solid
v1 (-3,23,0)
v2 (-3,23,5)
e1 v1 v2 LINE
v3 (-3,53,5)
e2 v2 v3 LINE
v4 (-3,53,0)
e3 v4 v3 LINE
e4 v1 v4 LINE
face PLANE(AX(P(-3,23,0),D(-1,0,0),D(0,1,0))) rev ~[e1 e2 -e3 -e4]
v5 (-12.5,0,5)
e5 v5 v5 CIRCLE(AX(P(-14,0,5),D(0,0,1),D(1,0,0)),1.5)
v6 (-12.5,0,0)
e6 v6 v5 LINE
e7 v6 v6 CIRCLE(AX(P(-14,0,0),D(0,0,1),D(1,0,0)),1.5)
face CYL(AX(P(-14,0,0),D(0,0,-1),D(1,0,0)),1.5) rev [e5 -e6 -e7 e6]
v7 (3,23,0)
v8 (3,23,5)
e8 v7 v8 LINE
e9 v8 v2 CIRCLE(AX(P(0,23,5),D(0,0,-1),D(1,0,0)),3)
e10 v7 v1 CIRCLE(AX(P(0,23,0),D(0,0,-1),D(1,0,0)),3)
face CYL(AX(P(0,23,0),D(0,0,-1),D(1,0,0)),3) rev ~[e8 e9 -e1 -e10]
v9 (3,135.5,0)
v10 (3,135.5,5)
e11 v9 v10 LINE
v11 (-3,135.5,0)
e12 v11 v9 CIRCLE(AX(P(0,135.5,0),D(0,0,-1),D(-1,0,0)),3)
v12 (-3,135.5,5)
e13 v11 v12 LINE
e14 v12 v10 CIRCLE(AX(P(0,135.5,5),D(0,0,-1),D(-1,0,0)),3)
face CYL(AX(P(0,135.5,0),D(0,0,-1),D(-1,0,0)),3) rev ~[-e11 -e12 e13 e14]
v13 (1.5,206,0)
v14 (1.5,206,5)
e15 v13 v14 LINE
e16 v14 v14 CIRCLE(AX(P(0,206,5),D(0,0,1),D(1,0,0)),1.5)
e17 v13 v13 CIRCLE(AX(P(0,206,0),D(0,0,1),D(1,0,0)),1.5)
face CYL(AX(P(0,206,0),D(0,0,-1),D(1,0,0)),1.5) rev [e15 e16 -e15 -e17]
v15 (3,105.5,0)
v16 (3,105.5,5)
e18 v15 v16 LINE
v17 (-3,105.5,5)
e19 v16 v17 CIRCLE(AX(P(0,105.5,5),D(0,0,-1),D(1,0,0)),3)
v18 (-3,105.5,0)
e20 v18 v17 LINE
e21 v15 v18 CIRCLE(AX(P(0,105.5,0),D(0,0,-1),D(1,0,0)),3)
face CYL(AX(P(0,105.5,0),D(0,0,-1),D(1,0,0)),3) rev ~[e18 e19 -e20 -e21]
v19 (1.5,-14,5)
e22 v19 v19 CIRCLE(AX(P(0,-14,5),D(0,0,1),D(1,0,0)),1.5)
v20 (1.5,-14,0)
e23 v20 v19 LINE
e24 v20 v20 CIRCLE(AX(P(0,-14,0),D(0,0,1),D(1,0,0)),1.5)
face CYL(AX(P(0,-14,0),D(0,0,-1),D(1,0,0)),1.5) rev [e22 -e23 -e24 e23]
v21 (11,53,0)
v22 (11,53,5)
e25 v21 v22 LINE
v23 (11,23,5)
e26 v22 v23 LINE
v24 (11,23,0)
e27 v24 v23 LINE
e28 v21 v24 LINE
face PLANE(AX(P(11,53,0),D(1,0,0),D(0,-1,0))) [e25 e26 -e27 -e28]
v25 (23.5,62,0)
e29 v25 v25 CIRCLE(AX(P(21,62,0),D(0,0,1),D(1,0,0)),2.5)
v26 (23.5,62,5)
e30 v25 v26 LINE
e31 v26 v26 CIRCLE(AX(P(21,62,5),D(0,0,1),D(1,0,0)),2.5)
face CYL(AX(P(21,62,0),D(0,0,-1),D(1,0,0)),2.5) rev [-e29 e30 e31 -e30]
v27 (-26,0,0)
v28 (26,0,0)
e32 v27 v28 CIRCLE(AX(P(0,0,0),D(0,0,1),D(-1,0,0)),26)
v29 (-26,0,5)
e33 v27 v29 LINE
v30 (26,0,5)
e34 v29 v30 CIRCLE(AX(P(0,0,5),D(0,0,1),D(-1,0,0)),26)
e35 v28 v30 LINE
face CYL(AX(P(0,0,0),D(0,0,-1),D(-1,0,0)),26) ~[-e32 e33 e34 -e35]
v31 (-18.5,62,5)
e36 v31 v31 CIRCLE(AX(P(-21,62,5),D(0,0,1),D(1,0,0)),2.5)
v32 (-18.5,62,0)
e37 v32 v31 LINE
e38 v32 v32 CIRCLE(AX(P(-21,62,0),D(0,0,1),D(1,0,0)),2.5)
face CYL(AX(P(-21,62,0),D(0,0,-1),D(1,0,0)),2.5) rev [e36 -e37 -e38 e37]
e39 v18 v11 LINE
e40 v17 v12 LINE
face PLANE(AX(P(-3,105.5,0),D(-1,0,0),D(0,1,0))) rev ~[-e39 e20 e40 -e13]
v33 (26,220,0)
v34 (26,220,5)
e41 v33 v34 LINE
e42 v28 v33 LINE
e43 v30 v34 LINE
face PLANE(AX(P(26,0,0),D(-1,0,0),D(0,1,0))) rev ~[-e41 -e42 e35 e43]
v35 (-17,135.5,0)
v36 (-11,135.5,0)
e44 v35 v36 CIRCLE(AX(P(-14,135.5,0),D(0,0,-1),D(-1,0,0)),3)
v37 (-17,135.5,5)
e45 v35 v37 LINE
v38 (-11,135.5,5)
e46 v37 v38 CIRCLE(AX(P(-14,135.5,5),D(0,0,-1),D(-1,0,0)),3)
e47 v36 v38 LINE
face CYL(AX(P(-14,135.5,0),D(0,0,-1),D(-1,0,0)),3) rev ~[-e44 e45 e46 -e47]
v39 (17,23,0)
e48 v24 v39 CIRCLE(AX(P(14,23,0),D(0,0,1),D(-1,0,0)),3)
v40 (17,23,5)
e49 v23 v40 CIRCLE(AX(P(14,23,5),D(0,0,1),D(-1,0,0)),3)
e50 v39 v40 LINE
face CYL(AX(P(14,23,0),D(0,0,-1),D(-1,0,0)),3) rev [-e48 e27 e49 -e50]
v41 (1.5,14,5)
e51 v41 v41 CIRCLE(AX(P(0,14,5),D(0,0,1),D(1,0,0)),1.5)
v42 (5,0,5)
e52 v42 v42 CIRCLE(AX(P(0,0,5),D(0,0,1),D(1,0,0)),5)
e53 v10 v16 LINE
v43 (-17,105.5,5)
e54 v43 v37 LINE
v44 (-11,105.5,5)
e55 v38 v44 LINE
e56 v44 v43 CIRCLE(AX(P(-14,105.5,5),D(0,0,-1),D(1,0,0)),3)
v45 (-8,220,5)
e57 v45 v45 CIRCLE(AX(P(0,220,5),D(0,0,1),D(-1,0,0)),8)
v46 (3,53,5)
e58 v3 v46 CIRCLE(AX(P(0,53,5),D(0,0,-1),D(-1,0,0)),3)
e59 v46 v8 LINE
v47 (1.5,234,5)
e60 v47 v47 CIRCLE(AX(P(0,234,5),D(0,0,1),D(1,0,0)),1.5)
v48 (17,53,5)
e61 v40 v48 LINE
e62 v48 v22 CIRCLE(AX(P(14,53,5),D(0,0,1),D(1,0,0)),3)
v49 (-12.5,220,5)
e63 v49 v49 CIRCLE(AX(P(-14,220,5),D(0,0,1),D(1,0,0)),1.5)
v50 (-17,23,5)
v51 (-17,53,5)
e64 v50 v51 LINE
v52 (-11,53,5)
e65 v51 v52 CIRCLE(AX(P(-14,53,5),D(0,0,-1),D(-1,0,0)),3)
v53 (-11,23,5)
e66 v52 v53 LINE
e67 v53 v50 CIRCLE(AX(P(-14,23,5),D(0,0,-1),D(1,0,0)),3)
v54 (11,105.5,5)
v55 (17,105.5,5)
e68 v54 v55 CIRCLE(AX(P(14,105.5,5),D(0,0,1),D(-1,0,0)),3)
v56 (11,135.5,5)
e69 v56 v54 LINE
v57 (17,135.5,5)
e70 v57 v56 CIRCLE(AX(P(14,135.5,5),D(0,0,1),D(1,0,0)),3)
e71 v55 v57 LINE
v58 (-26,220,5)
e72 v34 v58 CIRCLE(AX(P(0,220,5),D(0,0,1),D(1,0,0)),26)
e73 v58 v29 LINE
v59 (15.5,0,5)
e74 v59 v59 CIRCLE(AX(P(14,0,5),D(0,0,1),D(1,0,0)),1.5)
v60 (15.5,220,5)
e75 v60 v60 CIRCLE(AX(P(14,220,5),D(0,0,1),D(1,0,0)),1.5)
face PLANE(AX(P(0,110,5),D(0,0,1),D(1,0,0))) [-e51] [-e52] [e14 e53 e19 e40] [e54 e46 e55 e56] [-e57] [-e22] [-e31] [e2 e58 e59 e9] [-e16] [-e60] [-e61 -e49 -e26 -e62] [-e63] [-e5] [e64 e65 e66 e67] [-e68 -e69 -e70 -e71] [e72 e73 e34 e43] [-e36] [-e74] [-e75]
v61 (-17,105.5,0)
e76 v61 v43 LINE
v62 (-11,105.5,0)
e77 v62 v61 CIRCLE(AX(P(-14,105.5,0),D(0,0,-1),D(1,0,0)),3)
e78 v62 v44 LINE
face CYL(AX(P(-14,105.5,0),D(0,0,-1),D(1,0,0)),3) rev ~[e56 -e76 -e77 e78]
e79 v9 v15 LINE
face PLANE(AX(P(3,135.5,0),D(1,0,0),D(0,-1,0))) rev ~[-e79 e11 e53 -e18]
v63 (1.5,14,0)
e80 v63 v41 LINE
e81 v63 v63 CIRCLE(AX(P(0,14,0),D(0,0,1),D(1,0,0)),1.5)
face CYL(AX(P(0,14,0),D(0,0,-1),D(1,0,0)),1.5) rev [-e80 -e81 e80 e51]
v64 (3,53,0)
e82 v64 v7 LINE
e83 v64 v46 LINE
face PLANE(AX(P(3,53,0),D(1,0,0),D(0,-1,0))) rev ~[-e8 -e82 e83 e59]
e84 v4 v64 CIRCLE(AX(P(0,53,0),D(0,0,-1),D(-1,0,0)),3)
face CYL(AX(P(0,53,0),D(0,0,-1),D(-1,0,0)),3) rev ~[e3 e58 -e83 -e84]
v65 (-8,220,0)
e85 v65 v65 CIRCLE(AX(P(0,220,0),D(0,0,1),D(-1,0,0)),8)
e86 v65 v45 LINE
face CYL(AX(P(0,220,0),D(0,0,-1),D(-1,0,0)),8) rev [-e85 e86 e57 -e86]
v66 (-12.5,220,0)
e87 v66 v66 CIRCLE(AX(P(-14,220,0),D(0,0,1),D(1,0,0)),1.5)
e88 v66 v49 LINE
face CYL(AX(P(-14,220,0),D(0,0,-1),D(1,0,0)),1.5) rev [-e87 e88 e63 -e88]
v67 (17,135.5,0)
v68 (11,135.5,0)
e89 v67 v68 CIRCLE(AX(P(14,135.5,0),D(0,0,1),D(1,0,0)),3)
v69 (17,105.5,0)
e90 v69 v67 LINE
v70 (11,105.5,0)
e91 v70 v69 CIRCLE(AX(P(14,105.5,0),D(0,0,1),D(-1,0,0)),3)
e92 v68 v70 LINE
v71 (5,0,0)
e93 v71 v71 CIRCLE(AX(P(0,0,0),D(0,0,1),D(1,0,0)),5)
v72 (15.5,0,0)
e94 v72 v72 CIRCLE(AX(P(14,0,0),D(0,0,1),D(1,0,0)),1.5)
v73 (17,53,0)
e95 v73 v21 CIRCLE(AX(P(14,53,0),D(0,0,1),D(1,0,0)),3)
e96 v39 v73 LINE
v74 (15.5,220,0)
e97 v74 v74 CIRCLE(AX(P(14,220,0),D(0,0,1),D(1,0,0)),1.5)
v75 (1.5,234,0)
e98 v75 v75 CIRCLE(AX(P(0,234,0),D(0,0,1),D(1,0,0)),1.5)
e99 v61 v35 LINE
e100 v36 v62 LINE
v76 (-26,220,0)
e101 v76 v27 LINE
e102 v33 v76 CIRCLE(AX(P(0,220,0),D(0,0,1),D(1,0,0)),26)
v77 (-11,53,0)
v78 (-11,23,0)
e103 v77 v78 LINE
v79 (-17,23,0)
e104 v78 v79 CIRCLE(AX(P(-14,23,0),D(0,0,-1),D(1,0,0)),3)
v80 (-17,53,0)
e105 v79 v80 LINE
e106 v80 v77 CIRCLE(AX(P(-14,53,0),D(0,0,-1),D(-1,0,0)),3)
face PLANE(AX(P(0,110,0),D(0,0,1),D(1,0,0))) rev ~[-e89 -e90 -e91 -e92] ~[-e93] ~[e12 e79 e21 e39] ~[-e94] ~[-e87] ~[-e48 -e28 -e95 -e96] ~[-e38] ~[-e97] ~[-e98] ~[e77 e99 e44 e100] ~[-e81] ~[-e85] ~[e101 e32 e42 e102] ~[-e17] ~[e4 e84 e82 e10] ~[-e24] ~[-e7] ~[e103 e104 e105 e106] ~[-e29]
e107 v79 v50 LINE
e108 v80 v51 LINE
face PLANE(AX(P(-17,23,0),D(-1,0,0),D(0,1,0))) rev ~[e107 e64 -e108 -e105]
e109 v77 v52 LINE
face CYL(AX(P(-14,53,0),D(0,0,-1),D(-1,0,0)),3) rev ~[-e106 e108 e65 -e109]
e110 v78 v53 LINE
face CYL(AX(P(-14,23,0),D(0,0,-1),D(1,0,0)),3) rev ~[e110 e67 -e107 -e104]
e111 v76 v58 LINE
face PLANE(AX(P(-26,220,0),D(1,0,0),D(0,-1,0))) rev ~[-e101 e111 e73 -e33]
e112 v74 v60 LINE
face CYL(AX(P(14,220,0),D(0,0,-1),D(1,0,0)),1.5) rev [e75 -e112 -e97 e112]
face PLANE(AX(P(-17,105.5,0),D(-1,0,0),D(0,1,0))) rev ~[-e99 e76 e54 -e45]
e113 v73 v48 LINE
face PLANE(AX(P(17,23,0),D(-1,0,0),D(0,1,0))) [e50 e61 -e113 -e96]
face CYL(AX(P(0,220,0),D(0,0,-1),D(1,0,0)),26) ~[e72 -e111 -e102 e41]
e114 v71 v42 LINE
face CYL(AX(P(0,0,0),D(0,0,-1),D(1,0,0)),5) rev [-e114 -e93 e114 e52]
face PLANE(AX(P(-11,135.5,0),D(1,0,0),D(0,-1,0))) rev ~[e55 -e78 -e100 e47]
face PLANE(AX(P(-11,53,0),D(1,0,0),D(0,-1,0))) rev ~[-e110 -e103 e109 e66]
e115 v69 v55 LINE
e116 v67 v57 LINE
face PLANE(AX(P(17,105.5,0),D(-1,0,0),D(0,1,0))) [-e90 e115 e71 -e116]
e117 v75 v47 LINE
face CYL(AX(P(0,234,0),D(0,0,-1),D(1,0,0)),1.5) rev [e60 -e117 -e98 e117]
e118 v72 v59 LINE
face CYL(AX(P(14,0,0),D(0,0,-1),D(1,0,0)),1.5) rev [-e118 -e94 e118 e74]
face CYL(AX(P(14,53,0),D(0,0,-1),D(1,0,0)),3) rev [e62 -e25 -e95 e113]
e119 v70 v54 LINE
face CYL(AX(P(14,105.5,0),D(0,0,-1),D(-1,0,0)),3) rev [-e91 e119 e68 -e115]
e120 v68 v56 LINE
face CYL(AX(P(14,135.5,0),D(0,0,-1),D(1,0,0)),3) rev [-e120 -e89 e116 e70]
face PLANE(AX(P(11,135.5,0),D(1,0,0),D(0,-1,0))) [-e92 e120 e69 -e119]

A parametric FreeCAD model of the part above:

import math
import FreeCAD as App
import Part
import Sketcher

V = App.Vector
Q = App.Units.Quantity

doc = App.newDocument("Part")
body = doc.addObject("PartDesign::Body", "Body")

# Sketch on XY plane
sketch1 = body.newObject("Sketcher::SketchObject", "Sketch")
sketch1.AttachmentSupport = (doc.getObject("XY_Plane"), [""])
sketch1.MapMode = "FlatFace"
sketch1.addGeometry([
    Part.LineSegment(V(-26, 220, 0), V(-26, 0, 0)),  # 0
    Part.ArcOfCircle(Part.Circle(V(0, 0, 0), V(0, 0, 1), 26), math.radians(180), math.radians(360)),  # 1
    Part.LineSegment(V(26, 0, 0), V(26, 220, 0)),  # 2
    Part.ArcOfCircle(Part.Circle(V(0, 220, 0), V(0, 0, 1), 26), math.radians(0), math.radians(180)),  # 3
    Part.Circle(V(-14, 0, 0), V(0, 0, 1), 1.5),  # 4
    Part.ArcOfCircle(Part.Circle(V(-14, 23, 0), V(0, 0, 1), 3), math.radians(180), math.radians(360)),  # 5
    Part.LineSegment(V(-17, 23, 0), V(-17, 53, 0)),  # 6
    Part.ArcOfCircle(Part.Circle(V(-14, 53, 0), V(0, 0, 1), 3), math.radians(0), math.radians(180)),  # 7
    Part.LineSegment(V(-11, 53, 0), V(-11, 23, 0)),  # 8
    Part.Circle(V(-21, 62, 0), V(0, 0, 1), 2.5),  # 9
    Part.Circle(V(0, -14, 0), V(0, 0, 1), 1.5),  # 10
    Part.Circle(V(0, 0, 0), V(0, 0, 1), 5),  # 11
    Part.Circle(V(0, 14, 0), V(0, 0, 1), 1.5),  # 12
    Part.ArcOfCircle(Part.Circle(V(0, 23, 0), V(0, 0, 1), 3), math.radians(180), math.radians(360)),  # 13
    Part.LineSegment(V(-3, 23, 0), V(-3, 53, 0)),  # 14
    Part.ArcOfCircle(Part.Circle(V(0, 53, 0), V(0, 0, 1), 3), math.radians(0), math.radians(180)),  # 15
    Part.LineSegment(V(3, 53, 0), V(3, 23, 0)),  # 16
    Part.Circle(V(14, 0, 0), V(0, 0, 1), 1.5),  # 17
    Part.LineSegment(V(17, 53, 0), V(17, 23, 0)),  # 18
    Part.ArcOfCircle(Part.Circle(V(14, 23, 0), V(0, 0, 1), 3), math.radians(180), math.radians(360)),  # 19
    Part.LineSegment(V(11, 23, 0), V(11, 53, 0)),  # 20
    Part.ArcOfCircle(Part.Circle(V(14, 53, 0), V(0, 0, 1), 3), math.radians(0), math.radians(180)),  # 21
    Part.Circle(V(21, 62, 0), V(0, 0, 1), 2.5),  # 22
    Part.ArcOfCircle(Part.Circle(V(-14, 105.5, 0), V(0, 0, 1), 3), math.radians(180), math.radians(360)),  # 23
    Part.LineSegment(V(-17, 105.5, 0), V(-17, 135.5, 0)),  # 24
    Part.ArcOfCircle(Part.Circle(V(-14, 135.5, 0), V(0, 0, 1), 3), math.radians(0), math.radians(180)),  # 25
    Part.LineSegment(V(-11, 135.5, 0), V(-11, 105.5, 0)),  # 26
    Part.Circle(V(-14, 220, 0), V(0, 0, 1), 1.5),  # 27
    Part.ArcOfCircle(Part.Circle(V(0, 105.5, 0), V(0, 0, 1), 3), math.radians(180), math.radians(360)),  # 28
    Part.LineSegment(V(-3, 105.5, 0), V(-3, 135.5, 0)),  # 29
    Part.ArcOfCircle(Part.Circle(V(0, 135.5, 0), V(0, 0, 1), 3), math.radians(0), math.radians(180)),  # 30
    Part.LineSegment(V(3, 135.5, 0), V(3, 105.5, 0)),  # 31
    Part.LineSegment(V(17, 135.5, 0), V(17, 105.5, 0)),  # 32
    Part.ArcOfCircle(Part.Circle(V(14, 105.5, 0), V(0, 0, 1), 3), math.radians(180), math.radians(360)),  # 33
    Part.LineSegment(V(11, 105.5, 0), V(11, 135.5, 0)),  # 34
    Part.ArcOfCircle(Part.Circle(V(14, 135.5, 0), V(0, 0, 1), 3), math.radians(0), math.radians(180)),  # 35
    Part.Circle(V(0, 206, 0), V(0, 0, 1), 1.5),  # 36
    Part.Circle(V(0, 220, 0), V(0, 0, 1), 8),  # 37
    Part.Circle(V(0, 234, 0), V(0, 0, 1), 1.5),  # 38
    Part.Circle(V(14, 220, 0), V(0, 0, 1), 1.5),  # 39
], False)
sketch1.addConstraint([
    Sketcher.Constraint("Tangent", 0, 2, 1, 1),
    Sketcher.Constraint("Tangent", 1, 2, 2, 1),
    Sketcher.Constraint("Tangent", 2, 2, 3, 1),
    Sketcher.Constraint("Tangent", 3, 2, 0, 1),
    Sketcher.Constraint("Tangent", 5, 1, 6, 1),
    Sketcher.Constraint("Tangent", 6, 2, 7, 2),
    Sketcher.Constraint("Tangent", 7, 1, 8, 1),
    Sketcher.Constraint("Tangent", 8, 2, 5, 2),
    Sketcher.Constraint("Tangent", 13, 1, 14, 1),
    Sketcher.Constraint("Tangent", 14, 2, 15, 2),
    Sketcher.Constraint("Tangent", 15, 1, 16, 1),
    Sketcher.Constraint("Tangent", 16, 2, 13, 2),
    Sketcher.Constraint("Tangent", 18, 2, 19, 2),
    Sketcher.Constraint("Tangent", 19, 1, 20, 1),
    Sketcher.Constraint("Tangent", 20, 2, 21, 2),
    Sketcher.Constraint("Tangent", 21, 1, 18, 1),
    Sketcher.Constraint("Tangent", 23, 1, 24, 1),
    Sketcher.Constraint("Tangent", 24, 2, 25, 2),
    Sketcher.Constraint("Tangent", 25, 1, 26, 1),
    Sketcher.Constraint("Tangent", 26, 2, 23, 2),
    Sketcher.Constraint("Tangent", 28, 1, 29, 1),
    Sketcher.Constraint("Tangent", 29, 2, 30, 2),
    Sketcher.Constraint("Tangent", 30, 1, 31, 1),
    Sketcher.Constraint("Tangent", 31, 2, 28, 2),
    Sketcher.Constraint("Tangent", 32, 2, 33, 2),
    Sketcher.Constraint("Tangent", 33, 1, 34, 1),
    Sketcher.Constraint("Tangent", 34, 2, 35, 2),
    Sketcher.Constraint("Tangent", 35, 1, 32, 1),
    Sketcher.Constraint("Vertical", 0),
    Sketcher.Constraint("Vertical", 2),
    Sketcher.Constraint("Vertical", 6),
    Sketcher.Constraint("Vertical", 8),
    Sketcher.Constraint("Vertical", 14),
    Sketcher.Constraint("Vertical", 16),
    Sketcher.Constraint("Vertical", 18),
    Sketcher.Constraint("Vertical", 20),
    Sketcher.Constraint("Vertical", 24),
    Sketcher.Constraint("Vertical", 26),
    Sketcher.Constraint("Vertical", 29),
    Sketcher.Constraint("Vertical", 31),
    Sketcher.Constraint("Vertical", 32),
    Sketcher.Constraint("Vertical", 34),
    Sketcher.Constraint("Coincident", 1, 3, -1, 1),
    Sketcher.Constraint("Coincident", 11, 3, -1, 1),
    Sketcher.Constraint("Coincident", 37, 3, 3, 3),
    Sketcher.Constraint("Equal", 4, 10),
    Sketcher.Constraint("Equal", 10, 12),
    Sketcher.Constraint("Equal", 7, 13),
    Sketcher.Constraint("Equal", 12, 17),
    Sketcher.Constraint("Equal", 15, 19),
    Sketcher.Constraint("Equal", 9, 22),
    Sketcher.Constraint("Equal", 21, 23),
    Sketcher.Constraint("Equal", 17, 27),
    Sketcher.Constraint("Equal", 25, 28),
    Sketcher.Constraint("Equal", 30, 33),
    Sketcher.Constraint("Equal", 27, 36),
    Sketcher.Constraint("Equal", 36, 38),
    Sketcher.Constraint("Equal", 38, 39),
    Sketcher.Constraint("Symmetric", 10, 3, 12, 3, -1, 1),
    Sketcher.Constraint("Symmetric", 4, 3, 17, 3, -1, 1),
    Sketcher.Constraint("Symmetric", 5, 3, 19, 3, -2),
    Sketcher.Constraint("Symmetric", 9, 3, 22, 3, -2),
    Sketcher.Constraint("Symmetric", 23, 3, 33, 3, -2),
    Sketcher.Constraint("Symmetric", 27, 3, 39, 3, -2),
    Sketcher.Constraint("PointOnObject", 4, 3, -1),
    Sketcher.Constraint("PointOnObject", 10, 3, -2),
    Sketcher.Constraint("PointOnObject", 13, 3, -2),
    Sketcher.Constraint("PointOnObject", 28, 3, -2),
    Sketcher.Constraint("PointOnObject", 36, 3, -2),
    Sketcher.Constraint("PointOnObject", 38, 3, -2),
    Sketcher.Constraint("Horizontal", 5, 3, 13, 3),
    Sketcher.Constraint("Horizontal", 7, 3, 15, 3),
    Sketcher.Constraint("Horizontal", 15, 3, 21, 3),
    Sketcher.Constraint("Horizontal", 3, 3, 27, 3),
    Sketcher.Constraint("Horizontal", 23, 3, 28, 3),
    Sketcher.Constraint("Horizontal", 25, 3, 30, 3),
    Sketcher.Constraint("Horizontal", 30, 3, 35, 3),
    Sketcher.Constraint("Vertical", 4, 3, 5, 3),
    Sketcher.Constraint("Vertical", 7, 3, 23, 3),
    Sketcher.Constraint("Vertical", 25, 3, 27, 3),
    Sketcher.Constraint("Equal", 20, 24),
    Sketcher.Constraint("Diameter", 4, Q("3 mm")),
    Sketcher.Constraint("Diameter", 9, Q("5 mm")),
    Sketcher.Constraint("Diameter", 11, Q("10 mm")),
    Sketcher.Constraint("Diameter", 37, Q("16 mm")),
    Sketcher.Constraint("Radius", 1, Q("26 mm")),
    Sketcher.Constraint("Radius", 5, Q("3 mm")),
    Sketcher.Constraint("DistanceY", 0, 2, 0, 1, Q("220 mm")),
    Sketcher.Constraint("DistanceY", 6, 1, 6, 2, Q("30 mm")),
    Sketcher.Constraint("DistanceX", 4, 3, -1, 1, Q("14 mm")),
    Sketcher.Constraint("DistanceY", -1, 1, 5, 3, Q("23 mm")),
    Sketcher.Constraint("DistanceX", 9, 3, -1, 1, Q("21 mm")),
    Sketcher.Constraint("DistanceY", -1, 1, 9, 3, Q("62 mm")),
    Sketcher.Constraint("DistanceY", 10, 3, -1, 1, Q("14 mm")),
    Sketcher.Constraint("DistanceY", -1, 1, 36, 3, Q("206 mm")),
    Sketcher.Constraint("DistanceY", -1, 1, 38, 3, Q("234 mm")),
    Sketcher.Constraint("DistanceY", -1, 1, 23, 3, Q("105.5 mm")),
])
pad1 = body.newObject("PartDesign::Pad", "Pad")
pad1.Profile = sketch1
pad1.Length = 5

doc.recompute()
